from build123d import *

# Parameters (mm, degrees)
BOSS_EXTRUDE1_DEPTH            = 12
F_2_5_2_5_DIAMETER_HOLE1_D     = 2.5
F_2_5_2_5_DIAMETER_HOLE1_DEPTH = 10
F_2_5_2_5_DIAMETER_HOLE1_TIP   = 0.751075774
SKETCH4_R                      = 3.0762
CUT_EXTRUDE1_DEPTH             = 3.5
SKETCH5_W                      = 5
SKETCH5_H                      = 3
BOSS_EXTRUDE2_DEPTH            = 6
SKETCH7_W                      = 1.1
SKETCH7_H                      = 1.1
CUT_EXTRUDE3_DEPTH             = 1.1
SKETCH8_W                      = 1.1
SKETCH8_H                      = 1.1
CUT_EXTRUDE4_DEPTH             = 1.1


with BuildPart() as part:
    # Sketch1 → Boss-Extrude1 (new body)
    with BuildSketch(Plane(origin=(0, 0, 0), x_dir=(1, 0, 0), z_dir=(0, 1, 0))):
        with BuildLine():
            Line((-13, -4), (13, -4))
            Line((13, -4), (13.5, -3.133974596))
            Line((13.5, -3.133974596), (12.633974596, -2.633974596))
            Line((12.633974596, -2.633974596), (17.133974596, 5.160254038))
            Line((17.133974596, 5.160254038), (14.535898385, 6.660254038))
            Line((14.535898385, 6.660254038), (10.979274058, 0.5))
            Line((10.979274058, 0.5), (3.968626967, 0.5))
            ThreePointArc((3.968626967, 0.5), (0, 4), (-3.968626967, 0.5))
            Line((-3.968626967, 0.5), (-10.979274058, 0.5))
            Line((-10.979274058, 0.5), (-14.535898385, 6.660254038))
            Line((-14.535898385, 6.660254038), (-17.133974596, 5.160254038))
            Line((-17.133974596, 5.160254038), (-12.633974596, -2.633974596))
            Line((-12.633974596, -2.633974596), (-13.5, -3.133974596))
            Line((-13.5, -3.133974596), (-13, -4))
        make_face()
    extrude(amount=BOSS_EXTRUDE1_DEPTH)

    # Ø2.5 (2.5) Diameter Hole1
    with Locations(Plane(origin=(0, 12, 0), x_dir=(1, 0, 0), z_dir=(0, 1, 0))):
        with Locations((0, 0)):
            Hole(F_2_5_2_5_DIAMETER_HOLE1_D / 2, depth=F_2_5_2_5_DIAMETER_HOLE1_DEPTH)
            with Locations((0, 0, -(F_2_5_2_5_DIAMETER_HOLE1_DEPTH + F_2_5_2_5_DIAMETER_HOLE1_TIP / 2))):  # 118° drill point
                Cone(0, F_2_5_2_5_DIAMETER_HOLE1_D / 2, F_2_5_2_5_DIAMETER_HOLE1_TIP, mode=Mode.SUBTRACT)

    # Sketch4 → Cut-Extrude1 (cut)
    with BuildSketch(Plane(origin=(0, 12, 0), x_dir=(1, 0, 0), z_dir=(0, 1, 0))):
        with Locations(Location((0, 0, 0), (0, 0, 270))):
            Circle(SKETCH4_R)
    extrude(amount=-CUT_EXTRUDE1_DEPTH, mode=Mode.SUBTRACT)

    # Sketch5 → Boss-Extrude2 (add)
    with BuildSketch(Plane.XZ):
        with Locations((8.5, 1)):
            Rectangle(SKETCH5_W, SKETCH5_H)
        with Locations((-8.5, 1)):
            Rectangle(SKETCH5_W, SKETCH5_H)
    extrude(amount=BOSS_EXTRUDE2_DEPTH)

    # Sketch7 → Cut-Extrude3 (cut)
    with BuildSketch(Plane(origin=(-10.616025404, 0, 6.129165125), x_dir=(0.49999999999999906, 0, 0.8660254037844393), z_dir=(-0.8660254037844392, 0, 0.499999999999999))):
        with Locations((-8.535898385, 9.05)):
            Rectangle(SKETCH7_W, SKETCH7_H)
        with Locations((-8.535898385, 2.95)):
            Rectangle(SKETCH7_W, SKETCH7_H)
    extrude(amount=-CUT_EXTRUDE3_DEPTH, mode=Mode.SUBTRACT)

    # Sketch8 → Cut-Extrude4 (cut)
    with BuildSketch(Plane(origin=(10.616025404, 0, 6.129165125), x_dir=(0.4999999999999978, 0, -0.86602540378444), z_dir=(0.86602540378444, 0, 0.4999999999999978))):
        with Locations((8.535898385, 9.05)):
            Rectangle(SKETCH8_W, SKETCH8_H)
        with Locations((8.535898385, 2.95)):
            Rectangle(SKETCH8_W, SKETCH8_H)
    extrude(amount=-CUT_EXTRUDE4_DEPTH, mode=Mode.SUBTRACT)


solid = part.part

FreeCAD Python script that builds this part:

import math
import FreeCAD as App
import Part
import Sketcher
from FreeCAD import Vector
Q = App.Units.Quantity


def add_polygon(sketch, points):
    """Adds a closed chain of lines whose ends are joined by coincident constraints."""
    first, n = sketch.GeometryCount, len(points)
    for a, b in zip(points, points[1:] + points[:1]):
        sketch.addGeometry(Part.LineSegment(App.Vector(*a, 0), App.Vector(*b, 0)), False)
    for i in range(n):
        sketch.addConstraint(Sketcher.Constraint("Coincident", first + i, 2, first + (i + 1) % n, 1))

doc = App.newDocument("Part")
body = doc.addObject("PartDesign::Body", "Body")

# Sketch on XZ plane
sketch1 = body.newObject("Sketcher::SketchObject", "Sketch")
sketch1.AttachmentSupport = (doc.getObject("XZ_Plane"), [""])
sketch1.MapMode = "FlatFace"
sketch1.addGeometry(Part.LineSegment(Vector(-13, 4, 0), Vector(13, 4, 0)), False)
sketch1.addGeometry(Part.LineSegment(Vector(13, 4, 0), Vector(13.5, 3.133975, 0)), False)
sketch1.addGeometry(Part.LineSegment(Vector(13.5, 3.133975, 0), Vector(12.633975, 2.633975, 0)), False)
sketch1.addGeometry(Part.LineSegment(Vector(12.633975, 2.633975, 0), Vector(17.133975, -5.160254, 0)), False)
sketch1.addGeometry(Part.LineSegment(Vector(17.133975, -5.160254, 0), Vector(14.535898, -6.660254, 0)), False)
sketch1.addGeometry(Part.LineSegment(Vector(14.535898, -6.660254, 0), Vector(10.979274, -0.5, 0)), False)
sketch1.addGeometry(Part.LineSegment(Vector(10.979274, -0.5, 0), Vector(3.968627, -0.5, 0)), False)
sketch1.addGeometry(Part.ArcOfCircle(Part.Circle(Vector(0, 0, 0), Vector(0, 0, 1), 4), math.radians(-172.819244), math.radians(-7.180756)), False)
sketch1.addGeometry(Part.LineSegment(Vector(-3.968627, -0.5, 0), Vector(-10.979274, -0.5, 0)), False)
sketch1.addGeometry(Part.LineSegment(Vector(-10.979274, -0.5, 0), Vector(-14.535898, -6.660254, 0)), False)
sketch1.addGeometry(Part.LineSegment(Vector(-14.535898, -6.660254, 0), Vector(-17.133975, -5.160254, 0)), False)
sketch1.addGeometry(Part.LineSegment(Vector(-17.133975, -5.160254, 0), Vector(-12.633975, 2.633975, 0)), False)
sketch1.addGeometry(Part.LineSegment(Vector(-12.633975, 2.633975, 0), Vector(-13.5, 3.133975, 0)), False)
sketch1.addGeometry(Part.LineSegment(Vector(-13.5, 3.133975, 0), Vector(-13, 4, 0)), False)
sketch1.addConstraint(Sketcher.Constraint("Coincident", 0, 2, 1, 1))
sketch1.addConstraint(Sketcher.Constraint("Coincident", 1, 2, 2, 1))
sketch1.addConstraint(Sketcher.Constraint("Coincident", 2, 2, 3, 1))
sketch1.addConstraint(Sketcher.Constraint("Coincident", 3, 2, 4, 1))
sketch1.addConstraint(Sketcher.Constraint("Coincident", 4, 2, 5, 1))
sketch1.addConstraint(Sketcher.Constraint("Coincident", 5, 2, 6, 1))
sketch1.addConstraint(Sketcher.Constraint("Coincident", 6, 2, 7, 2))
sketch1.addConstraint(Sketcher.Constraint("Coincident", 7, 1, 8, 1))
sketch1.addConstraint(Sketcher.Constraint("Coincident", 8, 2, 9, 1))
sketch1.addConstraint(Sketcher.Constraint("Coincident", 9, 2, 10, 1))
sketch1.addConstraint(Sketcher.Constraint("Coincident", 10, 2, 11, 1))
sketch1.addConstraint(Sketcher.Constraint("Coincident", 11, 2, 12, 1))
sketch1.addConstraint(Sketcher.Constraint("Coincident", 12, 2, 13, 1))
sketch1.addConstraint(Sketcher.Constraint("Coincident", 13, 2, 0, 1))
sketch1.addConstraint(Sketcher.Constraint("Horizontal", 0))
sketch1.addConstraint(Sketcher.Constraint("Horizontal", 6))
sketch1.addConstraint(Sketcher.Constraint("Horizontal", 8))
sketch1.addConstraint(Sketcher.Constraint("Coincident", 7, 3, -1, 1))
sketch1.addConstraint(Sketcher.Constraint("Symmetric", 5, 2, 8, 2, -2))
sketch1.addConstraint(Sketcher.Constraint("Symmetric", 4, 2, 9, 2, -2))
sketch1.addConstraint(Sketcher.Constraint("Symmetric", 3, 2, 10, 2, -2))
sketch1.addConstraint(Sketcher.Constraint("Symmetric", 2, 2, 11, 2, -2))
sketch1.addConstraint(Sketcher.Constraint("Symmetric", 1, 2, 12, 2, -2))
sketch1.addConstraint(Sketcher.Constraint("Perpendicular", 1, 2))
sketch1.addConstraint(Sketcher.Constraint("Perpendicular", 2, 3))
sketch1.addConstraint(Sketcher.Constraint("Perpendicular", 3, 4))
sketch1.addConstraint(Sketcher.Constraint("Perpendicular", 4, 5))
sketch1.addConstraint(Sketcher.Constraint("Perpendicular", 12, 13))
sketch1.addConstraint(Sketcher.Constraint("Equal", 1, 2))
sketch1.addConstraint(Sketcher.Constraint("Radius", 7, Q("4 mm")))
sketch1.addConstraint(Sketcher.Constraint("DistanceX", 0, 1, 0, 2, Q("26 mm")))
sketch1.addConstraint(Sketcher.Constraint("Angle", 1, Q("-60 deg")))
sketch1.addConstraint(Sketcher.Constraint("Distance", 1, Q("1 mm")))
sketch1.addConstraint(Sketcher.Constraint("Distance", 3, Q("9 mm")))
sketch1.addConstraint(Sketcher.Constraint("Distance", 4, Q("3 mm")))
sketch1.addConstraint(Sketcher.Constraint("DistanceY", -1, 1, 0, 2, Q("4 mm")))
sketch1.addConstraint(Sketcher.Constraint("DistanceY", 5, 2, -1, 1, Q("0.5 mm")))
pad1 = body.newObject("PartDesign::Pad", "Pad")
pad1.Profile = sketch1
pad1.Length = 12
pad1.Reversed = True

# Sketch on XZ plane
sketch2 = body.newObject("Sketcher::SketchObject", "Sketch001")
sketch2.AttachmentSupport = (doc.getObject("XZ_Plane"), [""])
sketch2.MapMode = "FlatFace"
sketch2.AttachmentOffset = App.Placement(Vector(0, 0, -12), App.Rotation())
sketch2.addGeometry(Part.Circle(Vector(0, 0, 0), Vector(0, 0, 1), 1.25), False)
sketch2.addConstraint(Sketcher.Constraint("Coincident", 0, 3, -1, 1))
sketch2.addConstraint(Sketcher.Constraint("Diameter", 0, Q("2.5 mm")))
doc.recompute()
hole = body.newObject("PartDesign::Hole", "Hole")
hole.Profile = sketch2
hole.ThreadType = "None"
hole.Diameter = 2.5
hole.DepthType = "Dimension"
hole.Depth = 10
hole.DrillPoint = "Angled"
hole.DrillPointAngle = 118
hole.Reversed = True

# Sketch on XZ plane
sketch3 = body.newObject("Sketcher::SketchObject", "Sketch002")
sketch3.AttachmentSupport = (doc.getObject("XZ_Plane"), [""])
sketch3.MapMode = "FlatFace"
sketch3.AttachmentOffset = App.Placement(Vector(0, 0, -12), App.Rotation())
sketch3.addGeometry(Part.Circle(Vector(0, 0, 0), Vector(0, 0, 1), 3.0762), False)
sketch3.addConstraint(Sketcher.Constraint("Coincident", 0, 3, -1, 1))
sketch3.addConstraint(Sketcher.Constraint("Diameter", 0, Q("6.1524 mm")))
pocket1 = body.newObject("PartDesign::Pocket", "Pocket")
pocket1.Profile = sketch3
pocket1.Length = 3.5
pocket1.Reversed = True

# Sketch on XZ plane
sketch4 = body.newObject("Sketcher::SketchObject", "Sketch003")
sketch4.AttachmentSupport = (doc.getObject("XZ_Plane"), [""])
sketch4.MapMode = "FlatFace"
add_polygon(sketch4, [(6, 2.5), (6, -0.5), (11, -0.5), (11, 2.5)])  # lines 0-3
add_polygon(sketch4, [(-11, 2.5), (-11, -0.5), (-6, -0.5), (-6, 2.5)])  # lines 4-7
sketch4.addConstraint(Sketcher.Constraint("Vertical", 0))
sketch4.addConstraint(Sketcher.Constraint("Horizontal", 1))
sketch4.addConstraint(Sketcher.Constraint("Vertical", 2))
sketch4.addConstraint(Sketcher.Constraint("Horizontal", 3))
sketch4.addConstraint(Sketcher.Constraint("Vertical", 4))
sketch4.addConstraint(Sketcher.Constraint("Horizontal", 5))
sketch4.addConstraint(Sketcher.Constraint("Vertical", 6))
sketch4.addConstraint(Sketcher.Constraint("Horizontal", 7))
sketch4.addConstraint(Sketcher.Constraint("Symmetric", 1, 2, 4, 2, -2))
sketch4.addConstraint(Sketcher.Constraint("Symmetric", 3, 2, 6, 2, -2))
sketch4.addConstraint(Sketcher.Constraint("DistanceX", 1, 1, 1, 2, Q("5 mm")))
sketch4.addConstraint(Sketcher.Constraint("DistanceY", 0, 2, 0, 1, Q("3 mm")))
sketch4.addConstraint(Sketcher.Constraint("DistanceX", -1, 1, 0, 2, Q("6 mm")))
sketch4.addConstraint(Sketcher.Constraint("DistanceY", 0, 2, -1, 1, Q("0.5 mm")))
pad2 = body.newObject("PartDesign::Pad", "Pad001")
pad2.Profile = sketch4
pad2.Length = 6

# Sketch on an angled plane
sketch5 = body.newObject("Sketcher::SketchObject", "Sketch004")
sketch5.Placement = App.Placement(Vector(-10.616025, 0, 6.129165), App.Rotation(Vector(0.5, 0, 0.866025404), Vector(0, 1, 0), Vector(-0.866025404, 0, 0.5), "ZXY"))
add_polygon(sketch5, [(-9.085898, 9.6), (-9.085898, 8.5), (-7.985898, 8.5), (-7.985898, 9.6)])  # lines 0-3
add_polygon(sketch5, [(-9.085898, 3.5), (-9.085898, 2.4), (-7.985898, 2.4), (-7.985898, 3.5)])  # lines 4-7
sketch5.addConstraint(Sketcher.Constraint("Vertical", 0))
sketch5.addConstraint(Sketcher.Constraint("Horizontal", 1))
sketch5.addConstraint(Sketcher.Constraint("Vertical", 2))
sketch5.addConstraint(Sketcher.Constraint("Horizontal", 3))
sketch5.addConstraint(Sketcher.Constraint("Vertical", 4))
sketch5.addConstraint(Sketcher.Constraint("Horizontal", 5))
sketch5.addConstraint(Sketcher.Constraint("Vertical", 6))
sketch5.addConstraint(Sketcher.Constraint("Horizontal", 7))
sketch5.addConstraint(Sketcher.Constraint("Vertical", 3, 2, 4, 2))
sketch5.addConstraint(Sketcher.Constraint("Vertical", 2, 2, 5, 2))
sketch5.addConstraint(Sketcher.Constraint("Equal", 7, 0))
sketch5.addConstraint(Sketcher.Constraint("Equal", 2, 4))
sketch5.addConstraint(Sketcher.Constraint("DistanceX", 1, 1, 1, 2, Q("1.1 mm")))
sketch5.addConstraint(Sketcher.Constraint("DistanceY", 6, 2, 1, 2, Q("5 mm")))
sketch5.addConstraint(Sketcher.Constraint("DistanceY", -1, 1, 0, 2, Q("8.5 mm")))
sketch5.addConstraint(Sketcher.Constraint("DistanceX", 0, 2, -1, 1, Q("9.085898 mm")))
pocket2 = body.newObject("PartDesign::Pocket", "Pocket001")
pocket2.Profile = sketch5
pocket2.Length = 1.1

# Sketch on an angled plane
sketch6 = body.newObject("Sketcher::SketchObject", "Sketch005")
sketch6.Placement = App.Placement(Vector(10.616025, 0, 6.129165), App.Rotation(Vector(0.5, 0, -0.866025404), Vector(0, 1, 0), Vector(0.866025404, 0, 0.5), "ZXY"))
add_polygon(sketch6, [(7.985898, 9.6), (7.985898, 8.5), (9.085898, 8.5), (9.085898, 9.6)])  # lines 0-3
add_polygon(sketch6, [(7.985898, 3.5), (7.985898, 2.4), (9.085898, 2.4), (9.085898, 3.5)])  # lines 4-7
sketch6.addConstraint(Sketcher.Constraint("Vertical", 0))
sketch6.addConstraint(Sketcher.Constraint("Horizontal", 1))
sketch6.addConstraint(Sketcher.Constraint("Vertical", 2))
sketch6.addConstraint(Sketcher.Constraint("Horizontal", 3))
sketch6.addConstraint(Sketcher.Constraint("Vertical", 4))
sketch6.addConstraint(Sketcher.Constraint("Horizontal", 5))
sketch6.addConstraint(Sketcher.Constraint("Vertical", 6))
sketch6.addConstraint(Sketcher.Constraint("Horizontal", 7))
sketch6.addConstraint(Sketcher.Constraint("Vertical", 3, 2, 4, 2))
sketch6.addConstraint(Sketcher.Constraint("Vertical", 2, 2, 5, 2))
sketch6.addConstraint(Sketcher.Constraint("Equal", 7, 0))
sketch6.addConstraint(Sketcher.Constraint("Equal", 2, 4))
sketch6.addConstraint(Sketcher.Constraint("DistanceX", 1, 1, 1, 2, Q("1.1 mm")))
sketch6.addConstraint(Sketcher.Constraint("DistanceY", 6, 2, 1, 2, Q("5 mm")))
sketch6.addConstraint(Sketcher.Constraint("DistanceY", -1, 1, 0, 2, Q("8.5 mm")))
sketch6.addConstraint(Sketcher.Constraint("DistanceX", -1, 1, 0, 2, Q("7.985898 mm")))
pocket3 = body.newObject("PartDesign::Pocket", "Pocket002")
pocket3.Profile = sketch6
pocket3.Length = 1.1

doc.recompute()
